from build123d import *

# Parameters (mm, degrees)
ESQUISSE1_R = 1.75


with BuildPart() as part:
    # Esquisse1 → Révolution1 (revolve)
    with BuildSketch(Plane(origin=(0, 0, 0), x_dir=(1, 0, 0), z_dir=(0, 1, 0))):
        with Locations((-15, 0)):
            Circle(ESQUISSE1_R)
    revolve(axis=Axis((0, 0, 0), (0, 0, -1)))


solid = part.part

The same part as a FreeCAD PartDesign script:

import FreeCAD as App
import Part
import Sketcher

doc = App.newDocument("Part")
body = doc.addObject("PartDesign::Body", "Body")

sketch1 = body.newObject("Sketcher::SketchObject", "Sketch")
sketch1.AttachmentSupport = (doc.getObject("XZ_Plane"), [""])
sketch1.MapMode = "FlatFace"
sketch1.addGeometry(Part.Circle(App.Vector(-15, 0, 0), App.Vector(0, 0, 1), 1.8), False)
sketch1.addConstraint([
    Sketcher.Constraint("PointOnObject", 0, 3, -1),
    Sketcher.Constraint("Diameter", 0, 3.5),
    Sketcher.Constraint("DistanceX", 0, 3, -1, 1, 15.0),
])
revolution = body.newObject("PartDesign::Revolution", "Revolution")
revolution.Profile = sketch1
revolution.ReferenceAxis = (sketch1, ["V_Axis"])
revolution.Angle = 360

doc.recompute()
